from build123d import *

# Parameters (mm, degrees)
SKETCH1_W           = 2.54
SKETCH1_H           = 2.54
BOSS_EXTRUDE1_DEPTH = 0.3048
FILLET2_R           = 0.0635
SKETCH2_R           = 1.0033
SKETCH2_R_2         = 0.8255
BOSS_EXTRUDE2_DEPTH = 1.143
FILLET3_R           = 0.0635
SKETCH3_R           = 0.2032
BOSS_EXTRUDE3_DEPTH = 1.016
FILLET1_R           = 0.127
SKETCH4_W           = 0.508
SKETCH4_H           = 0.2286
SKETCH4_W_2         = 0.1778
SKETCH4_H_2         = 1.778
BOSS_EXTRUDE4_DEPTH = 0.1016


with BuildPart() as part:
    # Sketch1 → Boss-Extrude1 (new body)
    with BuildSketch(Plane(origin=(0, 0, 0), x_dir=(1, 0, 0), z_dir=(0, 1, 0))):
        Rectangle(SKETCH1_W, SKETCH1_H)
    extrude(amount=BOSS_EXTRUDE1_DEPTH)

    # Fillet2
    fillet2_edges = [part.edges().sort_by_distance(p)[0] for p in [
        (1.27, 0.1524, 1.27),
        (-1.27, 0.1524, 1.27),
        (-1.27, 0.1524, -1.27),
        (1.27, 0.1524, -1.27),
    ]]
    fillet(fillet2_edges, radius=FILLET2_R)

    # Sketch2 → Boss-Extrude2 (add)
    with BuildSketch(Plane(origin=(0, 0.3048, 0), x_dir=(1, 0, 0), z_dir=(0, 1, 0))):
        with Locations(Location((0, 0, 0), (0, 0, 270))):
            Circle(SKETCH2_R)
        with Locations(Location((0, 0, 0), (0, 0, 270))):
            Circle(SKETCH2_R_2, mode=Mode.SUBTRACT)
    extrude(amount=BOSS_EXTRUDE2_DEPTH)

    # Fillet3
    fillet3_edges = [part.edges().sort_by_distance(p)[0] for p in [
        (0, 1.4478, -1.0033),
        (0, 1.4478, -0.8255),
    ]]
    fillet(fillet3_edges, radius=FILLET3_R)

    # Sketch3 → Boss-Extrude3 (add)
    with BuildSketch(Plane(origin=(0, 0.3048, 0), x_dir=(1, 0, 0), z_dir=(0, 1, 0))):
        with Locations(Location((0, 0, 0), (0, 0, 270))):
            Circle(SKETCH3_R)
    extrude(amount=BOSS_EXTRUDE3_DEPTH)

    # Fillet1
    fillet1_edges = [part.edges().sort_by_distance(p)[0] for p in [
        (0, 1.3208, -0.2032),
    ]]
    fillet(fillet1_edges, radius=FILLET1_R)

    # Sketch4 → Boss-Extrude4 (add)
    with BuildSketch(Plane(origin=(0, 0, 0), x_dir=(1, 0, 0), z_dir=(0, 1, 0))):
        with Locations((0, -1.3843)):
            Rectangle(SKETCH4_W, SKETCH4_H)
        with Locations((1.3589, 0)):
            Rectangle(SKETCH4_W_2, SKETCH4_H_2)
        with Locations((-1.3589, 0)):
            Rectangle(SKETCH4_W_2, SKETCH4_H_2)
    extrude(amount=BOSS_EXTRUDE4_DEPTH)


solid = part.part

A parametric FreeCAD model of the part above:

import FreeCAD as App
import Part
import Sketcher

V = App.Vector
Q = App.Units.Quantity


def edges_at(feature, points):
    """Names of the edges that pass closest to the given points."""
    edges = feature.Shape.Edges
    near = lambda p: min(range(len(edges)), key=lambda i: edges[i].distToShape(Part.Vertex(*p))[0])
    return sorted({f"Edge{near(p) + 1}" for p in points})


def add_polygon(sketch, points):
    """Adds a closed chain of lines whose ends are joined by coincident constraints."""
    first, n = sketch.GeometryCount, len(points)
    for a, b in zip(points, points[1:] + points[:1]):
        sketch.addGeometry(Part.LineSegment(App.Vector(*a, 0), App.Vector(*b, 0)), False)
    for i in range(n):
        sketch.addConstraint(Sketcher.Constraint("Coincident", first + i, 2, first + (i + 1) % n, 1))

doc = App.newDocument("Part")
body = doc.addObject("PartDesign::Body", "Body")

# Sketch on XZ plane
sketch1 = body.newObject("Sketcher::SketchObject", "Sketch")
sketch1.AttachmentSupport = (doc.getObject("XZ_Plane"), [""])
sketch1.MapMode = "FlatFace"
add_polygon(sketch1, [(-1.27, -1.27), (-1.27, 1.27), (1.27, 1.27), (1.27, -1.27)])  # lines 0-3
sketch1.addConstraint(Sketcher.Constraint("Vertical", 0))
sketch1.addConstraint(Sketcher.Constraint("Horizontal", 1))
sketch1.addConstraint(Sketcher.Constraint("Vertical", 2))
sketch1.addConstraint(Sketcher.Constraint("Horizontal", 3))
sketch1.addConstraint(Sketcher.Constraint("Symmetric", 0, 2, 2, 2, -1, 1))
sketch1.addConstraint(Sketcher.Constraint("Equal", 3, 0))
sketch1.addConstraint(Sketcher.Constraint("DistanceX", 1, 1, 1, 2, Q("0.1 in")))
pad1 = body.newObject("PartDesign::Pad", "Pad")
pad1.Profile = sketch1
pad1.Length = Q("0.012 in")
pad1.Reversed = True
doc.recompute()

fillet = body.newObject("PartDesign::Fillet", "Fillet")
fillet.Base = (pad1, edges_at(pad1, [
    (1.27, 0.152, 1.27),
    (-1.27, 0.152, 1.27),
    (-1.27, 0.152, -1.27),
    (1.27, 0.152, -1.27),
]))
fillet.Radius = Q("0.0025 in")

# Sketch on XZ plane
sketch2 = body.newObject("Sketcher::SketchObject", "Sketch001")
sketch2.AttachmentSupport = (doc.getObject("XZ_Plane"), [""])
sketch2.MapMode = "FlatFace"
sketch2.AttachmentOffset = App.Placement(V(0, 0, -0.012 * 25.4), App.Rotation())
sketch2.addGeometry(Part.Circle(V(0, 0, 0), V(0, 0, 1), 1.0033), False)
sketch2.addGeometry(Part.Circle(V(0, 0, 0), V(0, 0, 1), 0.8255), False)
sketch2.addConstraint(Sketcher.Constraint("Coincident", 0, 3, -1, 1))
sketch2.addConstraint(Sketcher.Constraint("Coincident", 1, 3, -1, 1))
sketch2.addConstraint(Sketcher.Constraint("Diameter", 0, Q("0.079 in")))
sketch2.addConstraint(Sketcher.Constraint("Diameter", 1, Q("0.065 in")))
pad2 = body.newObject("PartDesign::Pad", "Pad001")
pad2.Profile = sketch2
pad2.Length = Q("0.045 in")
pad2.Reversed = True
doc.recompute()

fillet2 = body.newObject("PartDesign::Fillet", "Fillet001")
fillet2.Base = (pad2, edges_at(pad2, [(0, 1.448, -1.003), (0, 1.448, -0.826)]))
fillet2.Radius = Q("0.0025 in")

# Sketch on XZ plane
sketch3 = body.newObject("Sketcher::SketchObject", "Sketch002")
sketch3.AttachmentSupport = (doc.getObject("XZ_Plane"), [""])
sketch3.MapMode = "FlatFace"
sketch3.AttachmentOffset = App.Placement(V(0, 0, -0.012 * 25.4), App.Rotation())
sketch3.addGeometry(Part.Circle(V(0, 0, 0), V(0, 0, 1), 0.2032), False)
sketch3.addConstraint(Sketcher.Constraint("Coincident", 0, 3, -1, 1))
sketch3.addConstraint(Sketcher.Constraint("Diameter", 0, Q("0.016 in")))
pad3 = body.newObject("PartDesign::Pad", "Pad002")
pad3.Profile = sketch3
pad3.Length = Q("0.04 in")
pad3.Reversed = True
doc.recompute()

fillet3 = body.newObject("PartDesign::Fillet", "Fillet002")
fillet3.Base = (pad3, edges_at(pad3, [(0, 1.321, -0.203)]))
fillet3.Radius = Q("0.005 in")

# Sketch on XZ plane
sketch4 = body.newObject("Sketcher::SketchObject", "Sketch003")
sketch4.AttachmentSupport = (doc.getObject("XZ_Plane"), [""])
sketch4.MapMode = "FlatFace"
add_polygon(sketch4, [(-0.254, 1.27), (-0.254, 1.4986), (0.254, 1.4986), (0.254, 1.27)])  # lines 0-3
add_polygon(sketch4, [(1.27, -0.889), (1.27, 0.889), (1.4478, 0.889), (1.4478, -0.889)])  # lines 4-7
add_polygon(sketch4, [(-1.4478, -0.889), (-1.4478, 0.889), (-1.27, 0.889), (-1.27, -0.889)])  # lines 8-11
sketch4.addConstraint(Sketcher.Constraint("Vertical", 0))
sketch4.addConstraint(Sketcher.Constraint("Horizontal", 1))
sketch4.addConstraint(Sketcher.Constraint("Vertical", 2))
sketch4.addConstraint(Sketcher.Constraint("Horizontal", 3))
sketch4.addConstraint(Sketcher.Constraint("Vertical", 4))
sketch4.addConstraint(Sketcher.Constraint("Horizontal", 5))
sketch4.addConstraint(Sketcher.Constraint("Vertical", 6))
sketch4.addConstraint(Sketcher.Constraint("Horizontal", 7))
sketch4.addConstraint(Sketcher.Constraint("Vertical", 8))
sketch4.addConstraint(Sketcher.Constraint("Horizontal", 9))
sketch4.addConstraint(Sketcher.Constraint("Vertical", 10))
sketch4.addConstraint(Sketcher.Constraint("Horizontal", 11))
sketch4.addConstraint(Sketcher.Constraint("Symmetric", 6, 2, 8, 2, -1, 1))
sketch4.addConstraint(Sketcher.Constraint("Symmetric", 4, 2, 10, 2, -1, 1))
sketch4.addConstraint(Sketcher.Constraint("Horizontal", 5, 2, 8, 2))
sketch4.addConstraint(Sketcher.Constraint("DistanceX", 1, 1, 1, 2, Q("0.02 in")))
sketch4.addConstraint(Sketcher.Constraint("DistanceY", 4, 1, 4, 2, Q("0.07 in")))
sketch4.addConstraint(Sketcher.Constraint("DistanceX", 10, 2, 7, 2, Q("0.1 in")))
sketch4.addConstraint(Sketcher.Constraint("DistanceX", 5, 1, 5, 2, Q("0.007 in")))
sketch4.addConstraint(Sketcher.Constraint("DistanceY", 0, 1, 0, 2, Q("0.009 in")))
sketch4.addConstraint(Sketcher.Constraint("DistanceX", 0, 2, -1, 1, Q("0.01 in")))
sketch4.addConstraint(Sketcher.Constraint("DistanceY", -1, 1, 2, 2, Q("0.05 in")))
pad4 = body.newObject("PartDesign::Pad", "Pad003")
pad4.Profile = sketch4
pad4.Length = Q("0.004 in")
pad4.Reversed = True

doc.recompute()
